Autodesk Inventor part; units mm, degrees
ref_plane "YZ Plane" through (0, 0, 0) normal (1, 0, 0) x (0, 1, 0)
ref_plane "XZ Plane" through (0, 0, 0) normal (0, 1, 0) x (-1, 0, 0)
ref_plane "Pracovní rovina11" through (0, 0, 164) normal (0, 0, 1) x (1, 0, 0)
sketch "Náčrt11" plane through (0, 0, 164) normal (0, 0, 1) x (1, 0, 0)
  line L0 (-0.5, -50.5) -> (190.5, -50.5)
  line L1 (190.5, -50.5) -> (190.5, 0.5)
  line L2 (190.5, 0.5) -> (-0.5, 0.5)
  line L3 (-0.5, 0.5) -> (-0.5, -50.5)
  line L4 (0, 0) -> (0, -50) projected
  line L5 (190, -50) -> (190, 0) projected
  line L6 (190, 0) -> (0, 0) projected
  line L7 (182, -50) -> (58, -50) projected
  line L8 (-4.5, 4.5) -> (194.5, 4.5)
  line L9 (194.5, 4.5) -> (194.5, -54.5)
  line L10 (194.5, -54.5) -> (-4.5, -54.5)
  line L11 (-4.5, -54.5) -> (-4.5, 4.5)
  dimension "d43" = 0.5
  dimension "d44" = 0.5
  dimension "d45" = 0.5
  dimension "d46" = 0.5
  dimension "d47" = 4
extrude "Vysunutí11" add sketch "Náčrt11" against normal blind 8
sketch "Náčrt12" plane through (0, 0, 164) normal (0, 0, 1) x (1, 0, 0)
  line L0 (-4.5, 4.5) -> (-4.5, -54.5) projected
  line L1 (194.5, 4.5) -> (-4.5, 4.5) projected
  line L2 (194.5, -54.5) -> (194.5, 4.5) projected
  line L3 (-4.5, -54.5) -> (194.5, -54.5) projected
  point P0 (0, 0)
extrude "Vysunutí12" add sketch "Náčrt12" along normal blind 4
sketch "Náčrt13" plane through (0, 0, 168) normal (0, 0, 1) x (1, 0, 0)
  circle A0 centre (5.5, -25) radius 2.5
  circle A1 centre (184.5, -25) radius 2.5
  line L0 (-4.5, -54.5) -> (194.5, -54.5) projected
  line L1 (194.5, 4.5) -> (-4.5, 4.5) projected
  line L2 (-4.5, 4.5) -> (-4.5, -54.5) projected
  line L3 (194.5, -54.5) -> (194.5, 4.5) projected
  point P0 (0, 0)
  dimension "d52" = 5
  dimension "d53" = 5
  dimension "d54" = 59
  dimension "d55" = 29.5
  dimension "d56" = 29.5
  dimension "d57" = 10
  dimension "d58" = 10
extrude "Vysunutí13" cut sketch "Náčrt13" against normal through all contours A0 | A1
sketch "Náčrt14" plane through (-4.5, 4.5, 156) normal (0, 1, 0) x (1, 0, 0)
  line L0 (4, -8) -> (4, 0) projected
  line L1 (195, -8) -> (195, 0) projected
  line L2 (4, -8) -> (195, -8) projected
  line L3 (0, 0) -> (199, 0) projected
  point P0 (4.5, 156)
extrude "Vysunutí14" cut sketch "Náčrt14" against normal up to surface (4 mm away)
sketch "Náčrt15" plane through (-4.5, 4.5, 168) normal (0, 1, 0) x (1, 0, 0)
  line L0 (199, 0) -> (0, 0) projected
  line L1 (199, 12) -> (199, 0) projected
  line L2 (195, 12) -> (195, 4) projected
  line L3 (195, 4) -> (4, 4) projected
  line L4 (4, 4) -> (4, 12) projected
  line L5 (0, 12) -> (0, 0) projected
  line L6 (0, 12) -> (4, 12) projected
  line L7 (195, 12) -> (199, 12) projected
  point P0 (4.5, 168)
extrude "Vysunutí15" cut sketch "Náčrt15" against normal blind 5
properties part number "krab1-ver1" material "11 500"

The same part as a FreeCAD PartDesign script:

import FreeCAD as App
import Part
import Sketcher

V = App.Vector
Q = App.Units.Quantity

doc = App.newDocument("Part")
body = doc.addObject("PartDesign::Body", "Body")

# Sketch on XY plane
sketch1 = body.newObject("Sketcher::SketchObject", "Sketch")
sketch1.AttachmentSupport = (doc.getObject("XY_Plane"), [""])
sketch1.MapMode = "FlatFace"
sketch1.AttachmentOffset = App.Placement(V(0, 0, 164), App.Rotation())
sketch1.addGeometry(Part.LineSegment(V(194, 4, 0), V(-4, 4, 0)), False)
sketch1.addGeometry(Part.LineSegment(V(-4, 4, 0), V(-4, -54, 0)), False)
sketch1.addGeometry(Part.LineSegment(V(-4, -54, 0), V(194, -54, 0)), False)
sketch1.addGeometry(Part.LineSegment(V(194, -54, 0), V(194, 4, 0)), False)
sketch1.addGeometry(Part.LineSegment(V(190, -50, 0), V(0, -50, 0)), False)
sketch1.addGeometry(Part.LineSegment(V(0, -50, 0), V(0, 0, 0)), False)
sketch1.addGeometry(Part.LineSegment(V(0, 0, 0), V(190, 0, 0)), False)
sketch1.addGeometry(Part.LineSegment(V(190, 0, 0), V(190, -50, 0)), False)
sketch1.addConstraint(Sketcher.Constraint("Coincident", 0, 2, 1, 1))
sketch1.addConstraint(Sketcher.Constraint("Coincident", 1, 2, 2, 1))
sketch1.addConstraint(Sketcher.Constraint("Coincident", 2, 2, 3, 1))
sketch1.addConstraint(Sketcher.Constraint("Coincident", 3, 2, 0, 1))
sketch1.addConstraint(Sketcher.Constraint("Coincident", 4, 2, 5, 1))
sketch1.addConstraint(Sketcher.Constraint("Coincident", 5, 2, 6, 1))
sketch1.addConstraint(Sketcher.Constraint("Coincident", 6, 2, 7, 1))
sketch1.addConstraint(Sketcher.Constraint("Coincident", 7, 2, 4, 1))
sketch1.addConstraint(Sketcher.Constraint("Horizontal", 0))
sketch1.addConstraint(Sketcher.Constraint("Vertical", 1))
sketch1.addConstraint(Sketcher.Constraint("Horizontal", 2))
sketch1.addConstraint(Sketcher.Constraint("Vertical", 3))
sketch1.addConstraint(Sketcher.Constraint("Horizontal", 4))
sketch1.addConstraint(Sketcher.Constraint("Vertical", 5))
sketch1.addConstraint(Sketcher.Constraint("Horizontal", 6))
sketch1.addConstraint(Sketcher.Constraint("Vertical", 7))
sketch1.addConstraint(Sketcher.Constraint("DistanceX", 1, 2, 4, 2, Q("4 mm")))
sketch1.addConstraint(Sketcher.Constraint("DistanceY", 1, 2, 4, 2, Q("4 mm")))
sketch1.addConstraint(Sketcher.Constraint("DistanceY", 5, 2, 0, 2, Q("4 mm")))
sketch1.addConstraint(Sketcher.Constraint("DistanceX", 6, 2, 3, 2, Q("4 mm")))
sketch1.addConstraint(Sketcher.Constraint("DistanceX", 4, 2, -1, 1, Q("0.5 mm")))
sketch1.addConstraint(Sketcher.Constraint("DistanceY", -1, 1, 5, 2, Q("0.5 mm")))
sketch1.addConstraint(Sketcher.Constraint("DistanceX", 0, 2, 0, 1, Q("199 mm")))
sketch1.addConstraint(Sketcher.Constraint("DistanceY", 1, 2, 1, 1, Q("59 mm")))
pad1 = body.newObject("PartDesign::Pad", "Pad")
pad1.Profile = sketch1
pad1.Length = 8
pad1.Reversed = True

# Sketch on XY plane
sketch2 = body.newObject("Sketcher::SketchObject", "Sketch001")
sketch2.AttachmentSupport = (doc.getObject("XY_Plane"), [""])
sketch2.MapMode = "FlatFace"
sketch2.AttachmentOffset = App.Placement(V(0, 0, 164), App.Rotation())
sketch2.addGeometry(Part.LineSegment(V(194, 4, 0), V(-4, 4, 0)), False)
sketch2.addGeometry(Part.LineSegment(V(-4, 4, 0), V(-4, -54, 0)), False)
sketch2.addGeometry(Part.LineSegment(V(-4, -54, 0), V(194, -54, 0)), False)
sketch2.addGeometry(Part.LineSegment(V(194, -54, 0), V(194, 4, 0)), False)
sketch2.addConstraint(Sketcher.Constraint("Coincident", 0, 2, 1, 1))
sketch2.addConstraint(Sketcher.Constraint("Coincident", 1, 2, 2, 1))
sketch2.addConstraint(Sketcher.Constraint("Coincident", 2, 2, 3, 1))
sketch2.addConstraint(Sketcher.Constraint("Coincident", 3, 2, 0, 1))
sketch2.addConstraint(Sketcher.Constraint("Horizontal", 0))
sketch2.addConstraint(Sketcher.Constraint("Vertical", 1))
sketch2.addConstraint(Sketcher.Constraint("Horizontal", 2))
sketch2.addConstraint(Sketcher.Constraint("Vertical", 3))
sketch2.addConstraint(Sketcher.Constraint("DistanceX", 0, 2, 0, 1, Q("199 mm")))
sketch2.addConstraint(Sketcher.Constraint("DistanceY", 1, 2, 1, 1, Q("59 mm")))
sketch2.addConstraint(Sketcher.Constraint("DistanceX", 0, 2, -1, 1, Q("4.5 mm")))
sketch2.addConstraint(Sketcher.Constraint("DistanceY", -1, 1, 0, 2, Q("4.5 mm")))
pad2 = body.newObject("PartDesign::Pad", "Pad001")
pad2.Profile = sketch2
pad2.Length = 4

# Sketch on XY plane
sketch3 = body.newObject("Sketcher::SketchObject", "Sketch002")
sketch3.AttachmentSupport = (doc.getObject("XY_Plane"), [""])
sketch3.MapMode = "FlatFace"
sketch3.AttachmentOffset = App.Placement(V(0, 0, 168), App.Rotation())
sketch3.addGeometry(Part.Circle(V(5.5, -25, 0), V(0, 0, 1), 2.5), False)
sketch3.addGeometry(Part.Circle(V(184.5, -25, 0), V(0, 0, 1), 2.5), False)
sketch3.addConstraint(Sketcher.Constraint("Equal", 0, 1))
sketch3.addConstraint(Sketcher.Constraint("Horizontal", 0, 3, 1, 3))
sketch3.addConstraint(Sketcher.Constraint("Diameter", 0, Q("5 mm")))
sketch3.addConstraint(Sketcher.Constraint("DistanceY", 0, 3, -1, 1, Q("25 mm")))
sketch3.addConstraint(Sketcher.Constraint("DistanceX", 0, 3, 1, 3, Q("179 mm")))
sketch3.addConstraint(Sketcher.Constraint("DistanceX", -1, 1, 0, 3, Q("5.5 mm")))
pocket1 = body.newObject("PartDesign::Pocket", "Pocket")
pocket1.Profile = sketch3
pocket1.Type = "ThroughAll"

# Sketch on XZ plane
sketch4 = body.newObject("Sketcher::SketchObject", "Sketch003")
sketch4.AttachmentSupport = (doc.getObject("XZ_Plane"), [""])
sketch4.MapMode = "FlatFace"
sketch4.AttachmentOffset = App.Placement(V(0, 0, -4.5), App.Rotation())
sketch4.addGeometry(Part.LineSegment(V(0, 156, 0), V(0, 164, 0)), False)
sketch4.addGeometry(Part.LineSegment(V(0, 164, 0), V(190, 164, 0)), False)
sketch4.addGeometry(Part.LineSegment(V(190, 164, 0), V(190, 156, 0)), False)
sketch4.addGeometry(Part.LineSegment(V(190, 156, 0), V(0, 156, 0)), False)
sketch4.addConstraint(Sketcher.Constraint("Coincident", 0, 2, 1, 1))
sketch4.addConstraint(Sketcher.Constraint("Coincident", 1, 2, 2, 1))
sketch4.addConstraint(Sketcher.Constraint("Coincident", 2, 2, 3, 1))
sketch4.addConstraint(Sketcher.Constraint("Coincident", 3, 2, 0, 1))
sketch4.addConstraint(Sketcher.Constraint("Vertical", 0))
sketch4.addConstraint(Sketcher.Constraint("Horizontal", 1))
sketch4.addConstraint(Sketcher.Constraint("Vertical", 2))
sketch4.addConstraint(Sketcher.Constraint("Horizontal", 3))
sketch4.addConstraint(Sketcher.Constraint("DistanceX", 1, 1, 1, 2, Q("191 mm")))
sketch4.addConstraint(Sketcher.Constraint("DistanceY", 0, 1, 0, 2, Q("8 mm")))
sketch4.addConstraint(Sketcher.Constraint("DistanceY", -1, 1, 0, 2, Q("164 mm")))
sketch4.addConstraint(Sketcher.Constraint("DistanceX", 0, 2, -1, 1, Q("0.5 mm")))
pocket2 = body.newObject("PartDesign::Pocket", "Pocket001")
pocket2.Profile = sketch4
pocket2.Length = 4
pocket2.Reversed = True

# Sketch on XZ plane
sketch5 = body.newObject("Sketcher::SketchObject", "Sketch004")
sketch5.AttachmentSupport = (doc.getObject("XZ_Plane"), [""])
sketch5.MapMode = "FlatFace"
sketch5.AttachmentOffset = App.Placement(V(0, 0, -4.5), App.Rotation())
sketch5.addGeometry(Part.LineSegment(V(-4.5, 168, 0), V(194.5, 168, 0)), False)
sketch5.addGeometry(Part.LineSegment(V(194.5, 168, 0), V(194.5, 156, 0)), False)
sketch5.addGeometry(Part.LineSegment(V(194.5, 156, 0), V(190.5, 156, 0)), False)
sketch5.addGeometry(Part.LineSegment(V(190.5, 156, 0), V(190.5, 164, 0)), False)
sketch5.addGeometry(Part.LineSegment(V(190.5, 164, 0), V(-0.5, 164, 0)), False)
sketch5.addGeometry(Part.LineSegment(V(-0.5, 164, 0), V(-0.5, 156, 0)), False)
sketch5.addGeometry(Part.LineSegment(V(-0.5, 156, 0), V(-4.5, 156, 0)), False)
sketch5.addGeometry(Part.LineSegment(V(-4.5, 156, 0), V(-4.5, 168, 0)), False)
sketch5.addConstraint(Sketcher.Constraint("Coincident", 0, 2, 1, 1))
sketch5.addConstraint(Sketcher.Constraint("Coincident", 1, 2, 2, 1))
sketch5.addConstraint(Sketcher.Constraint("Coincident", 2, 2, 3, 1))
sketch5.addConstraint(Sketcher.Constraint("Coincident", 3, 2, 4, 1))
sketch5.addConstraint(Sketcher.Constraint("Coincident", 4, 2, 5, 1))
sketch5.addConstraint(Sketcher.Constraint("Coincident", 5, 2, 6, 1))
sketch5.addConstraint(Sketcher.Constraint("Coincident", 6, 2, 7, 1))
sketch5.addConstraint(Sketcher.Constraint("Coincident", 7, 2, 0, 1))
sketch5.addConstraint(Sketcher.Constraint("Horizontal", 0))
sketch5.addConstraint(Sketcher.Constraint("Vertical", 1))
sketch5.addConstraint(Sketcher.Constraint("Horizontal", 2))
sketch5.addConstraint(Sketcher.Constraint("Vertical", 3))
sketch5.addConstraint(Sketcher.Constraint("Horizontal", 4))
sketch5.addConstraint(Sketcher.Constraint("Vertical", 5))
sketch5.addConstraint(Sketcher.Constraint("Horizontal", 6))
sketch5.addConstraint(Sketcher.Constraint("Vertical", 7))
sketch5.addConstraint(Sketcher.Constraint("Horizontal", 2, 2, 5, 2))
sketch5.addConstraint(Sketcher.Constraint("Equal", 2, 6))
sketch5.addConstraint(Sketcher.Constraint("DistanceX", 0, 1, 0, 2, Q("199 mm")))
sketch5.addConstraint(Sketcher.Constraint("DistanceX", 2, 2, 2, 1, Q("4 mm")))
sketch5.addConstraint(Sketcher.Constraint("DistanceY", 1, 2, 1, 1, Q("12 mm")))
sketch5.addConstraint(Sketcher.Constraint("DistanceY", 3, 1, 3, 2, Q("8 mm")))
sketch5.addConstraint(Sketcher.Constraint("DistanceY", -1, 1, 0, 2, Q("168 mm")))
sketch5.addConstraint(Sketcher.Constraint("DistanceX", -1, 1, 0, 2, Q("194.5 mm")))
pocket3 = body.newObject("PartDesign::Pocket", "Pocket002")
pocket3.Profile = sketch5
pocket3.Length = 5
pocket3.Reversed = True

doc.recompute()
